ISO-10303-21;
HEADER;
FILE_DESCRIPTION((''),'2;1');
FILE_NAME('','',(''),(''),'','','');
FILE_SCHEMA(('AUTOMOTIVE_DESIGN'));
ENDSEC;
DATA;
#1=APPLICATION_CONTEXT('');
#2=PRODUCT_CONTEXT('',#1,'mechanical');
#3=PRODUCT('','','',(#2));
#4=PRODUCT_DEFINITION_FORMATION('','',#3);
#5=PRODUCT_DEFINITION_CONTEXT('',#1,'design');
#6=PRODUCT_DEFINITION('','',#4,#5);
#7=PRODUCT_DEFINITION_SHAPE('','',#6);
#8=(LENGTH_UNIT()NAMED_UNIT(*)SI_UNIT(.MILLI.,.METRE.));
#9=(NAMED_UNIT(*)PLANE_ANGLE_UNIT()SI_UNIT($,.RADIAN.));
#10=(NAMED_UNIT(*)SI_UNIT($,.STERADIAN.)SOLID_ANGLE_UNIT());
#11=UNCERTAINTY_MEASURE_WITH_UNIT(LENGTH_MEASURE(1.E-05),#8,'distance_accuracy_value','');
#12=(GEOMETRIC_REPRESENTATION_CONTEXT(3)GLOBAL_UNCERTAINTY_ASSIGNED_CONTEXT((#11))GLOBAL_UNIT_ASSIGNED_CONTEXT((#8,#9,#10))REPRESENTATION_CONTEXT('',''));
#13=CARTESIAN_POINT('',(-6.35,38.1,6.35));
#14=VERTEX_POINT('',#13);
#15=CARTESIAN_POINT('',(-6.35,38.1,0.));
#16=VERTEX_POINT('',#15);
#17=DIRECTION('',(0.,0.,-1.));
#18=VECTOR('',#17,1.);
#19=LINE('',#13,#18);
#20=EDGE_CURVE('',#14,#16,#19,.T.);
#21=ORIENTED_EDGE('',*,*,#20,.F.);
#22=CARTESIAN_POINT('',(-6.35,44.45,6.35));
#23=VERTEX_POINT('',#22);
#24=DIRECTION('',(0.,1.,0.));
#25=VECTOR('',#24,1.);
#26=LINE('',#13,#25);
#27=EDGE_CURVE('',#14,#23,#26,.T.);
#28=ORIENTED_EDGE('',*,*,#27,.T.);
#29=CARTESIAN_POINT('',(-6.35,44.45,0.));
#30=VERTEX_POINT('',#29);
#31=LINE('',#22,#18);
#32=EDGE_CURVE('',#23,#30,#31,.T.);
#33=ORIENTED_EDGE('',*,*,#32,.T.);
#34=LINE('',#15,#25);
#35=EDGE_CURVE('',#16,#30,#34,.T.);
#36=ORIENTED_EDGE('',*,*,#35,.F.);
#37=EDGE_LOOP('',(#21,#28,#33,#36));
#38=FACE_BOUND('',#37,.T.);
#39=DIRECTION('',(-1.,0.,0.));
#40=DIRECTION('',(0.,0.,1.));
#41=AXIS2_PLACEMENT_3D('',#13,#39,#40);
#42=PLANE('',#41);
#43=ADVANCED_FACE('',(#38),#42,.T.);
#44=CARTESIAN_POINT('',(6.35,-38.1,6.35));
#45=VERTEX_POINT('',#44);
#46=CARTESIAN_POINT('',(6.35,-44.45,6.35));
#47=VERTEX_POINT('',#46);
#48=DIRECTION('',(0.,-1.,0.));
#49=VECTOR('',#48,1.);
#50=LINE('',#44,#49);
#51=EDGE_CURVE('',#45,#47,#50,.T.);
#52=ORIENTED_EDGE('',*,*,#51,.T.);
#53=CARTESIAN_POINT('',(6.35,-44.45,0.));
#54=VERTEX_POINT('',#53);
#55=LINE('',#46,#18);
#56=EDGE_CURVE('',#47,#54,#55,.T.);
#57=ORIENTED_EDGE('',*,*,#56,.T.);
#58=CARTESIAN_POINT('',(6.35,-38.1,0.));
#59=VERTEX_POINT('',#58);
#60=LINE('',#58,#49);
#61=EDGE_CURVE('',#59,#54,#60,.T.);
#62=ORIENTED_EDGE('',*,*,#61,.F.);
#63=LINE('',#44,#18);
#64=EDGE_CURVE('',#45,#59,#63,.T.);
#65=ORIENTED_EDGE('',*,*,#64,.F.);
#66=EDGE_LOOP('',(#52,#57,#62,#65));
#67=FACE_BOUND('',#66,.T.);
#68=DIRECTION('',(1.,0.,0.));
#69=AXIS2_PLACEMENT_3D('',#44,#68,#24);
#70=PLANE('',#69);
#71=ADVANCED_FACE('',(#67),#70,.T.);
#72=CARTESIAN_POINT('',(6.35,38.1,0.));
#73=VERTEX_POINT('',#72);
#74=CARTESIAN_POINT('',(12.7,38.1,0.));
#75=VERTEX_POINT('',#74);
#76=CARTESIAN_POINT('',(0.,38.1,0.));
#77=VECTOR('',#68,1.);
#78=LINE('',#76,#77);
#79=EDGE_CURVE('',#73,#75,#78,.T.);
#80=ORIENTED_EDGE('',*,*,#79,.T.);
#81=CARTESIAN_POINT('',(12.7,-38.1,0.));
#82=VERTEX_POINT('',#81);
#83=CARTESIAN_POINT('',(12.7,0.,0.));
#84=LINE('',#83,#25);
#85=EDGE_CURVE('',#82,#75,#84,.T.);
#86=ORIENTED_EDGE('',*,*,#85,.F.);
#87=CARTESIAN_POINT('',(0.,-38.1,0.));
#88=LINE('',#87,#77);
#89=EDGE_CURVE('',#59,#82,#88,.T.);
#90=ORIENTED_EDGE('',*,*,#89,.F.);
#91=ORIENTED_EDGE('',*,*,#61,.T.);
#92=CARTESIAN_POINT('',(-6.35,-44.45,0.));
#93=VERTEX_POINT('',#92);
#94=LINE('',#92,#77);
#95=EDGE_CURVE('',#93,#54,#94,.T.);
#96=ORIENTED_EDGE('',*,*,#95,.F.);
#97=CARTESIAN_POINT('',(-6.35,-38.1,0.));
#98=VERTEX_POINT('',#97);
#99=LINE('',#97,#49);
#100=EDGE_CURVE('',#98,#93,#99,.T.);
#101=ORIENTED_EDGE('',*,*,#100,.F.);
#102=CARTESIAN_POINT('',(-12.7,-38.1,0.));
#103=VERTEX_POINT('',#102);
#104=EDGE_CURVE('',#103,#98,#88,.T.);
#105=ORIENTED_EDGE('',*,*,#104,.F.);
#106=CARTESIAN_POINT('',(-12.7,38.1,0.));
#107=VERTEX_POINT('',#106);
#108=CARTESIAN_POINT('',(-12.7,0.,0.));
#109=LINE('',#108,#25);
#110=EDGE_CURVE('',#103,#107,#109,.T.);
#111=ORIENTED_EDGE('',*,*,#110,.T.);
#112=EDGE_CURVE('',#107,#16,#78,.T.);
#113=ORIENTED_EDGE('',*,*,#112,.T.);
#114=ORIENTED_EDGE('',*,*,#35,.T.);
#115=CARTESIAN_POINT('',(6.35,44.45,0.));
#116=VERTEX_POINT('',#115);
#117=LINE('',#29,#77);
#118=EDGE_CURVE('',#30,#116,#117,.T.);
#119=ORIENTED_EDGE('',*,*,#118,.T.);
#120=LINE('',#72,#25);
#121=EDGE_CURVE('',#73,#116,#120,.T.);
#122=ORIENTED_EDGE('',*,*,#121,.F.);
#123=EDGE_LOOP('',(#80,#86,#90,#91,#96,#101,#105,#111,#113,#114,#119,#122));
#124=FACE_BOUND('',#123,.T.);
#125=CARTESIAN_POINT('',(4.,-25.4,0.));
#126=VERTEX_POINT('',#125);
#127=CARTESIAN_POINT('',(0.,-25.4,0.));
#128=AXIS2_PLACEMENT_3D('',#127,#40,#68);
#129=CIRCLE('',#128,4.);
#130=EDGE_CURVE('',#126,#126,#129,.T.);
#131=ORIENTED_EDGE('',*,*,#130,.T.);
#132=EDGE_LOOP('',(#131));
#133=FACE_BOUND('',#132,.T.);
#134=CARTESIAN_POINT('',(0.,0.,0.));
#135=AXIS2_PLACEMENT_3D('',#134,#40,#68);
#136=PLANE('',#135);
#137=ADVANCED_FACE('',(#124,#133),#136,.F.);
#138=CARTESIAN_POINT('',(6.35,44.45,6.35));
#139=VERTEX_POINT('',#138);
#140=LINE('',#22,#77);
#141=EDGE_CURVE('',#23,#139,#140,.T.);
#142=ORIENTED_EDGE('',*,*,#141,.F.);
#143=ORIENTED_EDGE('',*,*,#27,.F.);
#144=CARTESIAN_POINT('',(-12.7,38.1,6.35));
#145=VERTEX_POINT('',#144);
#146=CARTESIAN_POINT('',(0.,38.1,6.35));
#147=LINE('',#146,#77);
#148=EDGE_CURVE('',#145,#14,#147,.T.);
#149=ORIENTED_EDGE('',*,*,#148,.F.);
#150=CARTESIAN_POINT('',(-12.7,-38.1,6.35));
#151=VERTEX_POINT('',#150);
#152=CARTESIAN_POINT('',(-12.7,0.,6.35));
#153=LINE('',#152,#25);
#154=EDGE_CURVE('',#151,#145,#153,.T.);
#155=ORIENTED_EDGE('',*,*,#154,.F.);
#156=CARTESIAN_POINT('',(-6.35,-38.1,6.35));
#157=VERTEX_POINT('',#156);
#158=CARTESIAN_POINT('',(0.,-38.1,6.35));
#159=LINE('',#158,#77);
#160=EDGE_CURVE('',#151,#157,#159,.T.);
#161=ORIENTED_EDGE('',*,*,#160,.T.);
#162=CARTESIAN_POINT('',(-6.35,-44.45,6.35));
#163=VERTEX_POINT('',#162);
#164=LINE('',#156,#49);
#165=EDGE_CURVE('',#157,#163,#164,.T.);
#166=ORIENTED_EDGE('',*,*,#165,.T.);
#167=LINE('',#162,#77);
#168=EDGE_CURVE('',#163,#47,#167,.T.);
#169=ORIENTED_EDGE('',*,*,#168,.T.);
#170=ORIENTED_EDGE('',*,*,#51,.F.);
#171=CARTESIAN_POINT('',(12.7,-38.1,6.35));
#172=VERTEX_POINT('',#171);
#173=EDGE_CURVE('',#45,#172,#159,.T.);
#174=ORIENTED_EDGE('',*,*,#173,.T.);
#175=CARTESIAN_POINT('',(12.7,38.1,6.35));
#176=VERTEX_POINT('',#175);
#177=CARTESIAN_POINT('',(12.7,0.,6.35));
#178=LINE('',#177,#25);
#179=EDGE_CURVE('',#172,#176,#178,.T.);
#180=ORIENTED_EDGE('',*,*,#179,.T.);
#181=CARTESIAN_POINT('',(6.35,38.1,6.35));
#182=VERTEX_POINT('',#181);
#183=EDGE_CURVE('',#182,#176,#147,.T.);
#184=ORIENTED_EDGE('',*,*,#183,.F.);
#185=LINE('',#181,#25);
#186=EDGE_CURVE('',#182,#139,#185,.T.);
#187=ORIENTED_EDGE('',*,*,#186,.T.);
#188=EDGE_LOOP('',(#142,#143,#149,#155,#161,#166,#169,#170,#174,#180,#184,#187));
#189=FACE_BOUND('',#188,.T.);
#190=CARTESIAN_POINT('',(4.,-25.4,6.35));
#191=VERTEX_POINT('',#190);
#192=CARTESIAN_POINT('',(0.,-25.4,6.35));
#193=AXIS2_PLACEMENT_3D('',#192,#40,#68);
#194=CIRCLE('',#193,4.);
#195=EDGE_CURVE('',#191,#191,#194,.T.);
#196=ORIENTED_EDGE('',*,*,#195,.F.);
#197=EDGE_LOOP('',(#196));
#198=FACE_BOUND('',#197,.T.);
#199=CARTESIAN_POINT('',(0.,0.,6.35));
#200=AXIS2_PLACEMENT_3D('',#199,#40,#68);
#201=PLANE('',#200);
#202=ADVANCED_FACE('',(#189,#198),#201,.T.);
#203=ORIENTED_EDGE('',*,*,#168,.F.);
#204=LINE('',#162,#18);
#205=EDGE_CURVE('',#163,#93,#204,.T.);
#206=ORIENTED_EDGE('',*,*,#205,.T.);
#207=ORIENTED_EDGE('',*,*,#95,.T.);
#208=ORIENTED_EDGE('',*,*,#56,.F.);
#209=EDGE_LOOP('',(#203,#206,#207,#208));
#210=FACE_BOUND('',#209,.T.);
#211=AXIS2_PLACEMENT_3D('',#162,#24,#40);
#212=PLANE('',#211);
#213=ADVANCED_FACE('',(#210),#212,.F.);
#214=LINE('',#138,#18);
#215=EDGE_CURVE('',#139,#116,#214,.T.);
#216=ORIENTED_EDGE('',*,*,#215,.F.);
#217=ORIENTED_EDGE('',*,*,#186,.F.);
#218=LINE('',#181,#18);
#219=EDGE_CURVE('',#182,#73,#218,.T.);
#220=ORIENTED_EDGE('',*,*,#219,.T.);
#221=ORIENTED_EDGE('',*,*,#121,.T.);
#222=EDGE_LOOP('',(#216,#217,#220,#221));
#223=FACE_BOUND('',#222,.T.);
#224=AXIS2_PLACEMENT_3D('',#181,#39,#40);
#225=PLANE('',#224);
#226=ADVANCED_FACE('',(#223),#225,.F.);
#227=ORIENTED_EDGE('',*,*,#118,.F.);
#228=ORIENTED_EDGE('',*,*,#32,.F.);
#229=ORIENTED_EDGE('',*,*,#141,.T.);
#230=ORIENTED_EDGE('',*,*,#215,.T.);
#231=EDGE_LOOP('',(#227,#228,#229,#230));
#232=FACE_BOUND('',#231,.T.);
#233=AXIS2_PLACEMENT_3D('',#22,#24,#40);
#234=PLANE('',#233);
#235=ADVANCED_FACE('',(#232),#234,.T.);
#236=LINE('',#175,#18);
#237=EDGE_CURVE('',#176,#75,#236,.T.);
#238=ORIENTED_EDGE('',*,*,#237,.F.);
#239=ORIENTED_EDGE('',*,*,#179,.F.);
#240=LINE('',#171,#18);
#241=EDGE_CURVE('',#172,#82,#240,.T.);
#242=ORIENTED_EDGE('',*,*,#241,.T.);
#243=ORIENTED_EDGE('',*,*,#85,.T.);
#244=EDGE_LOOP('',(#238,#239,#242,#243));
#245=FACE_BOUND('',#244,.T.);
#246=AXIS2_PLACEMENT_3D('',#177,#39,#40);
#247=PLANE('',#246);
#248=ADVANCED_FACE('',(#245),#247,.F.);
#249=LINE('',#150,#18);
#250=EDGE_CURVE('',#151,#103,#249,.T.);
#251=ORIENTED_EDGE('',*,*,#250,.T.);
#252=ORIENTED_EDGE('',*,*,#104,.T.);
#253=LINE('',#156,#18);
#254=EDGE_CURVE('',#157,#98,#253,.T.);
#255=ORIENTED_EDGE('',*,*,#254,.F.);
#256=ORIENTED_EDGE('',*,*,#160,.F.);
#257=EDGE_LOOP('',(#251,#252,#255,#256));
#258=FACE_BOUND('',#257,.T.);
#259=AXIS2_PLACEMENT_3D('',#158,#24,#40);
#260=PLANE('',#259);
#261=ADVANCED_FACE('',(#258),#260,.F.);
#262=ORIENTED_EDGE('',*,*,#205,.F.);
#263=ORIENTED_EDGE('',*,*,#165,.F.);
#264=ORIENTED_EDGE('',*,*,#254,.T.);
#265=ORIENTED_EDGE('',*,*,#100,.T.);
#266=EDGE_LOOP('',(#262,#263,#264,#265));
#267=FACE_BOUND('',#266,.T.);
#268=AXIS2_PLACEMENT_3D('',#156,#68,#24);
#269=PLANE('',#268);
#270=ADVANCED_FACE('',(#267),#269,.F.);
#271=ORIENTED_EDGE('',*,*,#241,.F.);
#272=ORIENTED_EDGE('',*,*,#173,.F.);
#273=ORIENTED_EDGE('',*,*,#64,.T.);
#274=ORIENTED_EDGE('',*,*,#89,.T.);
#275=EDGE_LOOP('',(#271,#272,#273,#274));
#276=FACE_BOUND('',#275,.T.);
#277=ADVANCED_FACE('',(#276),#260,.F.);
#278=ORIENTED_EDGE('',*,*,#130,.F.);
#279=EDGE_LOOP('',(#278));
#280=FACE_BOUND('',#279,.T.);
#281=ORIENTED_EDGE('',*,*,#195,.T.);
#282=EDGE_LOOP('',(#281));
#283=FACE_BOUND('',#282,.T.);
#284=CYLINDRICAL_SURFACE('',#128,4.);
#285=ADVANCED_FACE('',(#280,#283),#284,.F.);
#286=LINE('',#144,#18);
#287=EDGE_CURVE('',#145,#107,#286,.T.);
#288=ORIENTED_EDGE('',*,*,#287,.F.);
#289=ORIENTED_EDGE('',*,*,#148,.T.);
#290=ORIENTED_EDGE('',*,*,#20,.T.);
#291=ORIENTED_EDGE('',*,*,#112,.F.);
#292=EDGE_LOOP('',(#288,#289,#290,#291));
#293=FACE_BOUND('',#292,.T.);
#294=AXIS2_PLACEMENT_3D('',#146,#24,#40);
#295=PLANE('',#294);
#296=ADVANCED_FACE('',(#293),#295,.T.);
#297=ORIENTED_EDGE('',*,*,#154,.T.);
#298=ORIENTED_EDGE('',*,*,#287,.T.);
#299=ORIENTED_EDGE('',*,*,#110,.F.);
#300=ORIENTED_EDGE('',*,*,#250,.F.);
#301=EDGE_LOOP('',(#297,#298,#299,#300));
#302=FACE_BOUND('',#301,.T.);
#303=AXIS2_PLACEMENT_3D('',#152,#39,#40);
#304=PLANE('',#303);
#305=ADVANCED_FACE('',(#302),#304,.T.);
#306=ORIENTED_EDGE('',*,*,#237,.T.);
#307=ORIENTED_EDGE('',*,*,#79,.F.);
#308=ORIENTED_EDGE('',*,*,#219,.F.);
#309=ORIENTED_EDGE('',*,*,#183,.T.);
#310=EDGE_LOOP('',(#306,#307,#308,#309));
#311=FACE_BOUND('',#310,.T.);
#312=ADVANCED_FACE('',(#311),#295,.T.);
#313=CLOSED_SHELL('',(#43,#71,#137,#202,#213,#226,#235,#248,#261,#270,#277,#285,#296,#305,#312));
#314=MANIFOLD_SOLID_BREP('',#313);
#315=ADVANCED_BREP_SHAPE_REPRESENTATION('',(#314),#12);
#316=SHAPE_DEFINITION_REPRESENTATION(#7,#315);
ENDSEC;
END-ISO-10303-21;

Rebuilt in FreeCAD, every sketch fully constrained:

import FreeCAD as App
import Part
import Sketcher
Q = App.Units.Quantity

doc = App.newDocument("Part")
params = doc.addObject("Spreadsheet::Sheet", "Params")
for row, (alias, value) in enumerate([
    ("sketch1_height", "3 in"),
    ("sketch1_width", "0.5 in"),
    ("pad1_length", "0.25 in"),
], start=1):
    params.set(f"A{row}", alias)
    params.set(f"B{row}", "=" + value)
    params.setAlias(f"B{row}", alias)

body = doc.addObject("PartDesign::Body", "Body")

# Sketch on XY plane
sketch1 = doc.addObject("Sketcher::SketchObject", "Sketch")
body.addObject(sketch1)
sketch1.AttachmentSupport = (doc.XY_Plane, [""])
sketch1.MapMode = "FlatFace"
sketch1.addGeometry([
    Part.LineSegment(App.Vector(-13, 38, 0), App.Vector(-13, -38, 0)),  # 0
    Part.LineSegment(App.Vector(-13, -38, 0), App.Vector(-6, -38, 0)),  # 1
    Part.LineSegment(App.Vector(-6, -38, 0), App.Vector(-6, -44, 0)),  # 2
    Part.LineSegment(App.Vector(-6, -44, 0), App.Vector(6, -44, 0)),  # 3
    Part.LineSegment(App.Vector(6, -44, 0), App.Vector(6, -38, 0)),  # 4
    Part.LineSegment(App.Vector(6, -38, 0), App.Vector(13, -38, 0)),  # 5
    Part.LineSegment(App.Vector(13, -38, 0), App.Vector(13, 38, 0)),  # 6
    Part.LineSegment(App.Vector(13, 38, 0), App.Vector(6, 38, 0)),  # 7
    Part.LineSegment(App.Vector(6, 38, 0), App.Vector(6, 44, 0)),  # 8
    Part.LineSegment(App.Vector(6, 44, 0), App.Vector(-6, 44, 0)),  # 9
    Part.LineSegment(App.Vector(-6, 44, 0), App.Vector(-6, 38, 0)),  # 10
    Part.LineSegment(App.Vector(-6, 38, 0), App.Vector(-13, 38, 0)),  # 11
], False)
sketch1.addConstraint([
    Sketcher.Constraint("Coincident", 0, 2, 1, 1),
    Sketcher.Constraint("Coincident", 1, 2, 2, 1),
    Sketcher.Constraint("Coincident", 2, 2, 3, 1),
    Sketcher.Constraint("Coincident", 3, 2, 4, 1),
    Sketcher.Constraint("Coincident", 4, 2, 5, 1),
    Sketcher.Constraint("Coincident", 5, 2, 6, 1),
    Sketcher.Constraint("Coincident", 6, 2, 7, 1),
    Sketcher.Constraint("Coincident", 7, 2, 8, 1),
    Sketcher.Constraint("Coincident", 8, 2, 9, 1),
    Sketcher.Constraint("Coincident", 9, 2, 10, 1),
    Sketcher.Constraint("Coincident", 10, 2, 11, 1),
    Sketcher.Constraint("Coincident", 11, 2, 0, 1),
    Sketcher.Constraint("Vertical", 0),
    Sketcher.Constraint("Horizontal", 1),
    Sketcher.Constraint("Vertical", 2),
    Sketcher.Constraint("Horizontal", 3),
    Sketcher.Constraint("Vertical", 4),
    Sketcher.Constraint("Horizontal", 5),
    Sketcher.Constraint("Vertical", 6),
    Sketcher.Constraint("Horizontal", 7),
    Sketcher.Constraint("Vertical", 8),
    Sketcher.Constraint("Horizontal", 9),
    Sketcher.Constraint("Vertical", 10),
    Sketcher.Constraint("Horizontal", 11),
    Sketcher.Constraint("Symmetric", 0, 2, 6, 2, -1, 1),
    Sketcher.Constraint("Symmetric", 2, 2, 8, 2, -1, 1),
    Sketcher.Constraint("Symmetric", 4, 2, 10, 2, -1, 1),
    Sketcher.Constraint("Symmetric", 1, 2, 4, 2, -2),
    Sketcher.Constraint("Equal", 11, 2),
    Sketcher.Constraint("DistanceY", 0, 2, 0, 1, Q("3 in")),
    Sketcher.Constraint("DistanceX", 3, 1, 3, 2, Q("0.5 in")),
    Sketcher.Constraint("DistanceX", 0, 2, 5, 2, Q("1 in")),
])
sketch1.setExpression("Constraints[29]", "Params.sketch1_height")
sketch1.setExpression("Constraints[30]", "Params.sketch1_width")
pad1 = doc.addObject("PartDesign::Pad", "Pad")
body.addObject(pad1)
pad1.Profile = sketch1
pad1.setExpression("Length", "Params.pad1_length")

# Sketch on XY plane
sketch2 = doc.addObject("Sketcher::SketchObject", "Sketch001")
body.addObject(sketch2)
sketch2.AttachmentSupport = (doc.XY_Plane, [""])
sketch2.MapMode = "FlatFace"
sketch2.AttachmentOffset = App.Placement(App.Vector(0, 0, 0.25 * 25.4), App.Rotation())
sketch2.addGeometry(Part.Circle(App.Vector(0, -25.4, 0), App.Vector(0, 0, 1), 4), False)
sketch2.addConstraint([
    Sketcher.Constraint("PointOnObject", 0, 3, -2),
    Sketcher.Constraint("DistanceY", 0, 3, -1, 1, Q("1 in")),
    Sketcher.Constraint("Diameter", 0, 8.0),
])
pocket1 = doc.addObject("PartDesign::Pocket", "Pocket")
body.addObject(pocket1)
pocket1.Profile = sketch2
pocket1.Type = "ThroughAll"

doc.recompute()
